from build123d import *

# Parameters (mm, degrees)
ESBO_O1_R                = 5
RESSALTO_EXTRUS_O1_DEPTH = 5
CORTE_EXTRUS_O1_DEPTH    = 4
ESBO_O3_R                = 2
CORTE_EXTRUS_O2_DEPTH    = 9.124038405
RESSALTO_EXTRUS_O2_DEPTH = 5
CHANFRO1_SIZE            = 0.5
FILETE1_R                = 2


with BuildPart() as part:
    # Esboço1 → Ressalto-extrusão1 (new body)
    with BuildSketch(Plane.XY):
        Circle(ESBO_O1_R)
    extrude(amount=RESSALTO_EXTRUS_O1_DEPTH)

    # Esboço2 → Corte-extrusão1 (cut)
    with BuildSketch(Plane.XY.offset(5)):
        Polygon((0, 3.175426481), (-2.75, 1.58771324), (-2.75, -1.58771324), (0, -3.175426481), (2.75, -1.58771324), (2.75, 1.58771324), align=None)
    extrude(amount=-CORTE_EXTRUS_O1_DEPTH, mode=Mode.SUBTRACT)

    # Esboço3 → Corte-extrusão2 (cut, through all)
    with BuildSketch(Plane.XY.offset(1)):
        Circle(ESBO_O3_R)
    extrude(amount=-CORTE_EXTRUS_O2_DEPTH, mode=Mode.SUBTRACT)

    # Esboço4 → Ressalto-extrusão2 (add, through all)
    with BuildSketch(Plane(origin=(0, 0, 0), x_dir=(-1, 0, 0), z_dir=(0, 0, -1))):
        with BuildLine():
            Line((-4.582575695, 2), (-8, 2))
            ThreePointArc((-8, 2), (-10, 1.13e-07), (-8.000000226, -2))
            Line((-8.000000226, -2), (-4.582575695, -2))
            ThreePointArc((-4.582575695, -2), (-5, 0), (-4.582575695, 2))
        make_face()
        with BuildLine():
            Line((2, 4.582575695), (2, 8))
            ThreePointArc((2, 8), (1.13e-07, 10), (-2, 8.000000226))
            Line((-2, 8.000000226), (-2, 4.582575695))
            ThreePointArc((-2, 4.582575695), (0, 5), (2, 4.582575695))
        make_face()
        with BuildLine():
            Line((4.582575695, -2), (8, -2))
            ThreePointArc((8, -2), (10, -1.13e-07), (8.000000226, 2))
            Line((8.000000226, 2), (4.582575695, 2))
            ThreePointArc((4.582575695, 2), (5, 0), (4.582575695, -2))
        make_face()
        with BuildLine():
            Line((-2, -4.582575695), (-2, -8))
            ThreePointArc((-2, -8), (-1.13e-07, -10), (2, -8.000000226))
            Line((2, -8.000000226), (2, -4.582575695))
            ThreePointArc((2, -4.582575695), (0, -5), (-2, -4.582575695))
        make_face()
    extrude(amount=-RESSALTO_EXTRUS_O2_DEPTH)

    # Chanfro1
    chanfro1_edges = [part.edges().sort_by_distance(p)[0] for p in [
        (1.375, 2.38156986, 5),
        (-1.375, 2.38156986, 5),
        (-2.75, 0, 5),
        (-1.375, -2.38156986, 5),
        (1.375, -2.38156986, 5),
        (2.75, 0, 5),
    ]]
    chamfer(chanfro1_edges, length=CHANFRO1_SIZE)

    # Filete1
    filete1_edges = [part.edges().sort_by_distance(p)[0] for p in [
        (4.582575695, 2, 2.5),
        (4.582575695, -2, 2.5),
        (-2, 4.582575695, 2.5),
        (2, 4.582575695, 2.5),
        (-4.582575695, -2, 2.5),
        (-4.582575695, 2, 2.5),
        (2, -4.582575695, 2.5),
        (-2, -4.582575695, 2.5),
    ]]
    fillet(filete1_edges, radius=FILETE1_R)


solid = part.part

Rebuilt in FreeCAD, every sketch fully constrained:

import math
import FreeCAD as App
import Part
import Sketcher

V = App.Vector
Q = App.Units.Quantity


def edges_at(feature, points):
    """Names of the edges that pass closest to the given points."""
    edges = feature.Shape.Edges
    near = lambda p: min(range(len(edges)), key=lambda i: edges[i].distToShape(Part.Vertex(*p))[0])
    return sorted({f"Edge{near(p) + 1}" for p in points})


def add_polygon(sketch, points):
    """Adds a closed chain of lines whose ends are joined by coincident constraints."""
    first, n = sketch.GeometryCount, len(points)
    for a, b in zip(points, points[1:] + points[:1]):
        sketch.addGeometry(Part.LineSegment(App.Vector(*a, 0), App.Vector(*b, 0)), False)
    for i in range(n):
        sketch.addConstraint(Sketcher.Constraint("Coincident", first + i, 2, first + (i + 1) % n, 1))

doc = App.newDocument("Part")
params = doc.addObject("Spreadsheet::Sheet", "Params")
for row, (alias, value) in enumerate([
    ("sketch1_diameter", "10 mm"),
    ("pad1_length", "5 mm"),
    ("pocket1_length", "4 mm"),
    ("sketch3_diameter", "4 mm"),
    ("sketch4_radius", "2 mm"),
    ("sketch4_radius2", "5 mm"),
    ("pad2_length", "5 mm"),
    ("chamfer_size", "0.5 mm"),
    ("fillet_radius", "2 mm"),
], start=1):
    params.set(f"A{row}", alias)
    params.set(f"B{row}", "=" + value)
    params.setAlias(f"B{row}", alias)

body = doc.addObject("PartDesign::Body", "Body")

# Sketch on XY plane
sketch1 = doc.addObject("Sketcher::SketchObject", "Sketch")
body.addObject(sketch1)
sketch1.AttachmentSupport = (doc.XY_Plane, [""])
sketch1.MapMode = "FlatFace"
sketch1.addGeometry(Part.Circle(V(0, 0, 0), V(0, 0, 1), 5), False)
sketch1.addConstraint(Sketcher.Constraint("Coincident", 0, 3, -1, 1))
sketch1.addConstraint(Sketcher.Constraint("Diameter", 0, Q("10 mm")))
sketch1.setExpression("Constraints[1]", "Params.sketch1_diameter")
pad1 = doc.addObject("PartDesign::Pad", "Pad")
body.addObject(pad1)
pad1.Profile = sketch1
pad1.setExpression("Length", "Params.pad1_length")

# Sketch on XY plane
sketch2 = doc.addObject("Sketcher::SketchObject", "Sketch001")
body.addObject(sketch2)
sketch2.AttachmentSupport = (doc.XY_Plane, [""])
sketch2.MapMode = "FlatFace"
sketch2.AttachmentOffset = App.Placement(V(0, 0, 5), App.Rotation())
add_polygon(sketch2, [(0, 3.2), (-2.8, 1.6), (-2.8, -1.6), (0, -3.2), (2.8, -1.6), (2.8, 1.6)])  # lines 0-5
sketch2.addConstraint(Sketcher.Constraint("Vertical", 1))
sketch2.addConstraint(Sketcher.Constraint("Vertical", 4))
sketch2.addConstraint(Sketcher.Constraint("Symmetric", 0, 2, 3, 2, -1, 1))
sketch2.addConstraint(Sketcher.Constraint("Symmetric", 2, 2, 5, 2, -1, 1))
sketch2.addConstraint(Sketcher.Constraint("PointOnObject", 2, 2, -2))
sketch2.addConstraint(Sketcher.Constraint("Parallel", 2, 5))
sketch2.addConstraint(Sketcher.Constraint("Horizontal", 1, 2, 3, 2))
sketch2.addConstraint(Sketcher.Constraint("Angle", 0, Q("-150 deg")))
sketch2.addConstraint(Sketcher.Constraint("DistanceX", 1, 2, 3, 2, Q("5.5 mm")))
sketch2.addConstraint(Sketcher.Constraint("DistanceY", 1, 2, 1, 1, Q("3.175426 mm")))
pocket1 = doc.addObject("PartDesign::Pocket", "Pocket")
body.addObject(pocket1)
pocket1.Profile = sketch2
pocket1.setExpression("Length", "Params.pocket1_length")

# Sketch on XY plane
sketch3 = doc.addObject("Sketcher::SketchObject", "Sketch002")
body.addObject(sketch3)
sketch3.AttachmentSupport = (doc.XY_Plane, [""])
sketch3.MapMode = "FlatFace"
sketch3.AttachmentOffset = App.Placement(V(0, 0, 1), App.Rotation())
sketch3.addGeometry(Part.Circle(V(0, 0, 0), V(0, 0, 1), 2), False)
sketch3.addConstraint(Sketcher.Constraint("Coincident", 0, 3, -1, 1))
sketch3.addConstraint(Sketcher.Constraint("Diameter", 0, Q("4 mm")))
sketch3.setExpression("Constraints[1]", "Params.sketch3_diameter")
pocket2 = doc.addObject("PartDesign::Pocket", "Pocket001")
body.addObject(pocket2)
pocket2.Profile = sketch3
pocket2.Type = "ThroughAll"

# Sketch on XY plane
sketch4 = doc.addObject("Sketcher::SketchObject", "Sketch003")
body.addObject(sketch4)
sketch4.AttachmentSupport = (doc.XY_Plane, [""])
sketch4.MapMode = "FlatFace"
sketch4.addGeometry(Part.LineSegment(V(4.6, 2, 0), V(8, 2, 0)), False)
sketch4.addGeometry(Part.ArcOfCircle(Part.Circle(V(8, 0, 0), V(0, 0, 1), 2), math.radians(-90), math.radians(90)), False)
sketch4.addGeometry(Part.LineSegment(V(8, -2, 0), V(4.6, -2, 0)), False)
sketch4.addGeometry(Part.ArcOfCircle(Part.Circle(V(0, 0, 0), V(0, 0, 1), 5), math.radians(-24), math.radians(24)), False)
sketch4.addGeometry(Part.LineSegment(V(-2, 4.6, 0), V(-2, 8, 0)), False)
sketch4.addGeometry(Part.ArcOfCircle(Part.Circle(V(0, 8, 0), V(0, 0, 1), 2), math.radians(0), math.radians(180)), False)
sketch4.addGeometry(Part.LineSegment(V(2, 8, 0), V(2, 4.6, 0)), False)
sketch4.addGeometry(Part.ArcOfCircle(Part.Circle(V(0, 0, 0), V(0, 0, 1), 5), math.radians(66), math.radians(114)), False)
sketch4.addGeometry(Part.LineSegment(V(-4.6, -2, 0), V(-8, -2, 0)), False)
sketch4.addGeometry(Part.ArcOfCircle(Part.Circle(V(-8, 0, 0), V(0, 0, 1), 2), math.radians(90), math.radians(270)), False)
sketch4.addGeometry(Part.LineSegment(V(-8, 2, 0), V(-4.6, 2, 0)), False)
sketch4.addGeometry(Part.ArcOfCircle(Part.Circle(V(0, 0, 0), V(0, 0, 1), 5), math.radians(156), math.radians(204)), False)
sketch4.addGeometry(Part.LineSegment(V(2, -4.6, 0), V(2, -8, 0)), False)
sketch4.addGeometry(Part.ArcOfCircle(Part.Circle(V(0, -8, 0), V(0, 0, 1), 2), math.radians(-180), math.radians(0)), False)
sketch4.addGeometry(Part.LineSegment(V(-2, -8, 0), V(-2, -4.6, 0)), False)
sketch4.addGeometry(Part.ArcOfCircle(Part.Circle(V(0, 0, 0), V(0, 0, 1), 5), math.radians(-114), math.radians(-66)), False)
sketch4.addConstraint(Sketcher.Constraint("Tangent", 0, 2, 1, 2))
sketch4.addConstraint(Sketcher.Constraint("Tangent", 1, 1, 2, 1))
sketch4.addConstraint(Sketcher.Constraint("Coincident", 2, 2, 3, 1))
sketch4.addConstraint(Sketcher.Constraint("Coincident", 3, 2, 0, 1))
sketch4.addConstraint(Sketcher.Constraint("Tangent", 4, 2, 5, 2))
sketch4.addConstraint(Sketcher.Constraint("Tangent", 5, 1, 6, 1))
sketch4.addConstraint(Sketcher.Constraint("Coincident", 6, 2, 7, 1))
sketch4.addConstraint(Sketcher.Constraint("Coincident", 7, 2, 4, 1))
sketch4.addConstraint(Sketcher.Constraint("Tangent", 8, 2, 9, 2))
sketch4.addConstraint(Sketcher.Constraint("Tangent", 9, 1, 10, 1))
sketch4.addConstraint(Sketcher.Constraint("Coincident", 10, 2, 11, 1))
sketch4.addConstraint(Sketcher.Constraint("Coincident", 11, 2, 8, 1))
sketch4.addConstraint(Sketcher.Constraint("Tangent", 12, 2, 13, 2))
sketch4.addConstraint(Sketcher.Constraint("Tangent", 13, 1, 14, 1))
sketch4.addConstraint(Sketcher.Constraint("Coincident", 14, 2, 15, 1))
sketch4.addConstraint(Sketcher.Constraint("Coincident", 15, 2, 12, 1))
sketch4.addConstraint(Sketcher.Constraint("Horizontal", 0))
sketch4.addConstraint(Sketcher.Constraint("Horizontal", 2))
sketch4.addConstraint(Sketcher.Constraint("Vertical", 4))
sketch4.addConstraint(Sketcher.Constraint("Vertical", 6))
sketch4.addConstraint(Sketcher.Constraint("Horizontal", 8))
sketch4.addConstraint(Sketcher.Constraint("Horizontal", 10))
sketch4.addConstraint(Sketcher.Constraint("Vertical", 12))
sketch4.addConstraint(Sketcher.Constraint("Vertical", 14))
sketch4.addConstraint(Sketcher.Constraint("Coincident", 3, 3, -1, 1))
sketch4.addConstraint(Sketcher.Constraint("Coincident", 7, 3, -1, 1))
sketch4.addConstraint(Sketcher.Constraint("Coincident", 11, 3, -1, 1))
sketch4.addConstraint(Sketcher.Constraint("Coincident", 15, 3, -1, 1))
sketch4.addConstraint(Sketcher.Constraint("Equal", 1, 5))
sketch4.addConstraint(Sketcher.Constraint("Equal", 3, 7))
sketch4.addConstraint(Sketcher.Constraint("Equal", 5, 9))
sketch4.addConstraint(Sketcher.Constraint("Equal", 7, 11))
sketch4.addConstraint(Sketcher.Constraint("Equal", 9, 13))
sketch4.addConstraint(Sketcher.Constraint("Equal", 11, 15))
sketch4.addConstraint(Sketcher.Constraint("Symmetric", 1, 3, 9, 3, -1, 1))
sketch4.addConstraint(Sketcher.Constraint("Symmetric", 5, 3, 13, 3, -1, 1))
sketch4.addConstraint(Sketcher.Constraint("PointOnObject", 1, 3, -1))
sketch4.addConstraint(Sketcher.Constraint("PointOnObject", 5, 3, -2))
sketch4.addConstraint(Sketcher.Constraint("Equal", 10, 4))
sketch4.addConstraint(Sketcher.Constraint("Radius", 1, Q("2 mm")))
sketch4.addConstraint(Sketcher.Constraint("Radius", 3, Q("5 mm")))
sketch4.addConstraint(Sketcher.Constraint("DistanceX", -1, 1, 1, 3, Q("8 mm")))
sketch4.setExpression("Constraints[39]", "Params.sketch4_radius")
sketch4.setExpression("Constraints[40]", "Params.sketch4_radius2")
pad2 = doc.addObject("PartDesign::Pad", "Pad001")
body.addObject(pad2)
pad2.Profile = sketch4
pad2.setExpression("Length", "Params.pad2_length")
doc.recompute()

chamfer = doc.addObject("PartDesign::Chamfer", "Chamfer")
body.addObject(chamfer)
chamfer.Base = (pad2, edges_at(pad2, [
    (1.375, 2.382, 5),
    (-1.375, 2.382, 5),
    (-2.75, 0, 5),
    (-1.375, -2.382, 5),
    (1.375, -2.382, 5),
    (2.75, 0, 5),
]))
chamfer.setExpression("Size", "Params.chamfer_size")
doc.recompute()

fillet = doc.addObject("PartDesign::Fillet", "Fillet")
body.addObject(fillet)
fillet.Base = (chamfer, edges_at(chamfer, [
    (4.583, 2, 2.5),
    (4.583, -2, 2.5),
    (-2, 4.583, 2.5),
    (2, 4.583, 2.5),
    (-4.583, -2, 2.5),
    (-4.583, 2, 2.5),
    (2, -4.583, 2.5),
    (-2, -4.583, 2.5),
]))
fillet.setExpression("Radius", "Params.fillet_radius")

doc.recompute()
